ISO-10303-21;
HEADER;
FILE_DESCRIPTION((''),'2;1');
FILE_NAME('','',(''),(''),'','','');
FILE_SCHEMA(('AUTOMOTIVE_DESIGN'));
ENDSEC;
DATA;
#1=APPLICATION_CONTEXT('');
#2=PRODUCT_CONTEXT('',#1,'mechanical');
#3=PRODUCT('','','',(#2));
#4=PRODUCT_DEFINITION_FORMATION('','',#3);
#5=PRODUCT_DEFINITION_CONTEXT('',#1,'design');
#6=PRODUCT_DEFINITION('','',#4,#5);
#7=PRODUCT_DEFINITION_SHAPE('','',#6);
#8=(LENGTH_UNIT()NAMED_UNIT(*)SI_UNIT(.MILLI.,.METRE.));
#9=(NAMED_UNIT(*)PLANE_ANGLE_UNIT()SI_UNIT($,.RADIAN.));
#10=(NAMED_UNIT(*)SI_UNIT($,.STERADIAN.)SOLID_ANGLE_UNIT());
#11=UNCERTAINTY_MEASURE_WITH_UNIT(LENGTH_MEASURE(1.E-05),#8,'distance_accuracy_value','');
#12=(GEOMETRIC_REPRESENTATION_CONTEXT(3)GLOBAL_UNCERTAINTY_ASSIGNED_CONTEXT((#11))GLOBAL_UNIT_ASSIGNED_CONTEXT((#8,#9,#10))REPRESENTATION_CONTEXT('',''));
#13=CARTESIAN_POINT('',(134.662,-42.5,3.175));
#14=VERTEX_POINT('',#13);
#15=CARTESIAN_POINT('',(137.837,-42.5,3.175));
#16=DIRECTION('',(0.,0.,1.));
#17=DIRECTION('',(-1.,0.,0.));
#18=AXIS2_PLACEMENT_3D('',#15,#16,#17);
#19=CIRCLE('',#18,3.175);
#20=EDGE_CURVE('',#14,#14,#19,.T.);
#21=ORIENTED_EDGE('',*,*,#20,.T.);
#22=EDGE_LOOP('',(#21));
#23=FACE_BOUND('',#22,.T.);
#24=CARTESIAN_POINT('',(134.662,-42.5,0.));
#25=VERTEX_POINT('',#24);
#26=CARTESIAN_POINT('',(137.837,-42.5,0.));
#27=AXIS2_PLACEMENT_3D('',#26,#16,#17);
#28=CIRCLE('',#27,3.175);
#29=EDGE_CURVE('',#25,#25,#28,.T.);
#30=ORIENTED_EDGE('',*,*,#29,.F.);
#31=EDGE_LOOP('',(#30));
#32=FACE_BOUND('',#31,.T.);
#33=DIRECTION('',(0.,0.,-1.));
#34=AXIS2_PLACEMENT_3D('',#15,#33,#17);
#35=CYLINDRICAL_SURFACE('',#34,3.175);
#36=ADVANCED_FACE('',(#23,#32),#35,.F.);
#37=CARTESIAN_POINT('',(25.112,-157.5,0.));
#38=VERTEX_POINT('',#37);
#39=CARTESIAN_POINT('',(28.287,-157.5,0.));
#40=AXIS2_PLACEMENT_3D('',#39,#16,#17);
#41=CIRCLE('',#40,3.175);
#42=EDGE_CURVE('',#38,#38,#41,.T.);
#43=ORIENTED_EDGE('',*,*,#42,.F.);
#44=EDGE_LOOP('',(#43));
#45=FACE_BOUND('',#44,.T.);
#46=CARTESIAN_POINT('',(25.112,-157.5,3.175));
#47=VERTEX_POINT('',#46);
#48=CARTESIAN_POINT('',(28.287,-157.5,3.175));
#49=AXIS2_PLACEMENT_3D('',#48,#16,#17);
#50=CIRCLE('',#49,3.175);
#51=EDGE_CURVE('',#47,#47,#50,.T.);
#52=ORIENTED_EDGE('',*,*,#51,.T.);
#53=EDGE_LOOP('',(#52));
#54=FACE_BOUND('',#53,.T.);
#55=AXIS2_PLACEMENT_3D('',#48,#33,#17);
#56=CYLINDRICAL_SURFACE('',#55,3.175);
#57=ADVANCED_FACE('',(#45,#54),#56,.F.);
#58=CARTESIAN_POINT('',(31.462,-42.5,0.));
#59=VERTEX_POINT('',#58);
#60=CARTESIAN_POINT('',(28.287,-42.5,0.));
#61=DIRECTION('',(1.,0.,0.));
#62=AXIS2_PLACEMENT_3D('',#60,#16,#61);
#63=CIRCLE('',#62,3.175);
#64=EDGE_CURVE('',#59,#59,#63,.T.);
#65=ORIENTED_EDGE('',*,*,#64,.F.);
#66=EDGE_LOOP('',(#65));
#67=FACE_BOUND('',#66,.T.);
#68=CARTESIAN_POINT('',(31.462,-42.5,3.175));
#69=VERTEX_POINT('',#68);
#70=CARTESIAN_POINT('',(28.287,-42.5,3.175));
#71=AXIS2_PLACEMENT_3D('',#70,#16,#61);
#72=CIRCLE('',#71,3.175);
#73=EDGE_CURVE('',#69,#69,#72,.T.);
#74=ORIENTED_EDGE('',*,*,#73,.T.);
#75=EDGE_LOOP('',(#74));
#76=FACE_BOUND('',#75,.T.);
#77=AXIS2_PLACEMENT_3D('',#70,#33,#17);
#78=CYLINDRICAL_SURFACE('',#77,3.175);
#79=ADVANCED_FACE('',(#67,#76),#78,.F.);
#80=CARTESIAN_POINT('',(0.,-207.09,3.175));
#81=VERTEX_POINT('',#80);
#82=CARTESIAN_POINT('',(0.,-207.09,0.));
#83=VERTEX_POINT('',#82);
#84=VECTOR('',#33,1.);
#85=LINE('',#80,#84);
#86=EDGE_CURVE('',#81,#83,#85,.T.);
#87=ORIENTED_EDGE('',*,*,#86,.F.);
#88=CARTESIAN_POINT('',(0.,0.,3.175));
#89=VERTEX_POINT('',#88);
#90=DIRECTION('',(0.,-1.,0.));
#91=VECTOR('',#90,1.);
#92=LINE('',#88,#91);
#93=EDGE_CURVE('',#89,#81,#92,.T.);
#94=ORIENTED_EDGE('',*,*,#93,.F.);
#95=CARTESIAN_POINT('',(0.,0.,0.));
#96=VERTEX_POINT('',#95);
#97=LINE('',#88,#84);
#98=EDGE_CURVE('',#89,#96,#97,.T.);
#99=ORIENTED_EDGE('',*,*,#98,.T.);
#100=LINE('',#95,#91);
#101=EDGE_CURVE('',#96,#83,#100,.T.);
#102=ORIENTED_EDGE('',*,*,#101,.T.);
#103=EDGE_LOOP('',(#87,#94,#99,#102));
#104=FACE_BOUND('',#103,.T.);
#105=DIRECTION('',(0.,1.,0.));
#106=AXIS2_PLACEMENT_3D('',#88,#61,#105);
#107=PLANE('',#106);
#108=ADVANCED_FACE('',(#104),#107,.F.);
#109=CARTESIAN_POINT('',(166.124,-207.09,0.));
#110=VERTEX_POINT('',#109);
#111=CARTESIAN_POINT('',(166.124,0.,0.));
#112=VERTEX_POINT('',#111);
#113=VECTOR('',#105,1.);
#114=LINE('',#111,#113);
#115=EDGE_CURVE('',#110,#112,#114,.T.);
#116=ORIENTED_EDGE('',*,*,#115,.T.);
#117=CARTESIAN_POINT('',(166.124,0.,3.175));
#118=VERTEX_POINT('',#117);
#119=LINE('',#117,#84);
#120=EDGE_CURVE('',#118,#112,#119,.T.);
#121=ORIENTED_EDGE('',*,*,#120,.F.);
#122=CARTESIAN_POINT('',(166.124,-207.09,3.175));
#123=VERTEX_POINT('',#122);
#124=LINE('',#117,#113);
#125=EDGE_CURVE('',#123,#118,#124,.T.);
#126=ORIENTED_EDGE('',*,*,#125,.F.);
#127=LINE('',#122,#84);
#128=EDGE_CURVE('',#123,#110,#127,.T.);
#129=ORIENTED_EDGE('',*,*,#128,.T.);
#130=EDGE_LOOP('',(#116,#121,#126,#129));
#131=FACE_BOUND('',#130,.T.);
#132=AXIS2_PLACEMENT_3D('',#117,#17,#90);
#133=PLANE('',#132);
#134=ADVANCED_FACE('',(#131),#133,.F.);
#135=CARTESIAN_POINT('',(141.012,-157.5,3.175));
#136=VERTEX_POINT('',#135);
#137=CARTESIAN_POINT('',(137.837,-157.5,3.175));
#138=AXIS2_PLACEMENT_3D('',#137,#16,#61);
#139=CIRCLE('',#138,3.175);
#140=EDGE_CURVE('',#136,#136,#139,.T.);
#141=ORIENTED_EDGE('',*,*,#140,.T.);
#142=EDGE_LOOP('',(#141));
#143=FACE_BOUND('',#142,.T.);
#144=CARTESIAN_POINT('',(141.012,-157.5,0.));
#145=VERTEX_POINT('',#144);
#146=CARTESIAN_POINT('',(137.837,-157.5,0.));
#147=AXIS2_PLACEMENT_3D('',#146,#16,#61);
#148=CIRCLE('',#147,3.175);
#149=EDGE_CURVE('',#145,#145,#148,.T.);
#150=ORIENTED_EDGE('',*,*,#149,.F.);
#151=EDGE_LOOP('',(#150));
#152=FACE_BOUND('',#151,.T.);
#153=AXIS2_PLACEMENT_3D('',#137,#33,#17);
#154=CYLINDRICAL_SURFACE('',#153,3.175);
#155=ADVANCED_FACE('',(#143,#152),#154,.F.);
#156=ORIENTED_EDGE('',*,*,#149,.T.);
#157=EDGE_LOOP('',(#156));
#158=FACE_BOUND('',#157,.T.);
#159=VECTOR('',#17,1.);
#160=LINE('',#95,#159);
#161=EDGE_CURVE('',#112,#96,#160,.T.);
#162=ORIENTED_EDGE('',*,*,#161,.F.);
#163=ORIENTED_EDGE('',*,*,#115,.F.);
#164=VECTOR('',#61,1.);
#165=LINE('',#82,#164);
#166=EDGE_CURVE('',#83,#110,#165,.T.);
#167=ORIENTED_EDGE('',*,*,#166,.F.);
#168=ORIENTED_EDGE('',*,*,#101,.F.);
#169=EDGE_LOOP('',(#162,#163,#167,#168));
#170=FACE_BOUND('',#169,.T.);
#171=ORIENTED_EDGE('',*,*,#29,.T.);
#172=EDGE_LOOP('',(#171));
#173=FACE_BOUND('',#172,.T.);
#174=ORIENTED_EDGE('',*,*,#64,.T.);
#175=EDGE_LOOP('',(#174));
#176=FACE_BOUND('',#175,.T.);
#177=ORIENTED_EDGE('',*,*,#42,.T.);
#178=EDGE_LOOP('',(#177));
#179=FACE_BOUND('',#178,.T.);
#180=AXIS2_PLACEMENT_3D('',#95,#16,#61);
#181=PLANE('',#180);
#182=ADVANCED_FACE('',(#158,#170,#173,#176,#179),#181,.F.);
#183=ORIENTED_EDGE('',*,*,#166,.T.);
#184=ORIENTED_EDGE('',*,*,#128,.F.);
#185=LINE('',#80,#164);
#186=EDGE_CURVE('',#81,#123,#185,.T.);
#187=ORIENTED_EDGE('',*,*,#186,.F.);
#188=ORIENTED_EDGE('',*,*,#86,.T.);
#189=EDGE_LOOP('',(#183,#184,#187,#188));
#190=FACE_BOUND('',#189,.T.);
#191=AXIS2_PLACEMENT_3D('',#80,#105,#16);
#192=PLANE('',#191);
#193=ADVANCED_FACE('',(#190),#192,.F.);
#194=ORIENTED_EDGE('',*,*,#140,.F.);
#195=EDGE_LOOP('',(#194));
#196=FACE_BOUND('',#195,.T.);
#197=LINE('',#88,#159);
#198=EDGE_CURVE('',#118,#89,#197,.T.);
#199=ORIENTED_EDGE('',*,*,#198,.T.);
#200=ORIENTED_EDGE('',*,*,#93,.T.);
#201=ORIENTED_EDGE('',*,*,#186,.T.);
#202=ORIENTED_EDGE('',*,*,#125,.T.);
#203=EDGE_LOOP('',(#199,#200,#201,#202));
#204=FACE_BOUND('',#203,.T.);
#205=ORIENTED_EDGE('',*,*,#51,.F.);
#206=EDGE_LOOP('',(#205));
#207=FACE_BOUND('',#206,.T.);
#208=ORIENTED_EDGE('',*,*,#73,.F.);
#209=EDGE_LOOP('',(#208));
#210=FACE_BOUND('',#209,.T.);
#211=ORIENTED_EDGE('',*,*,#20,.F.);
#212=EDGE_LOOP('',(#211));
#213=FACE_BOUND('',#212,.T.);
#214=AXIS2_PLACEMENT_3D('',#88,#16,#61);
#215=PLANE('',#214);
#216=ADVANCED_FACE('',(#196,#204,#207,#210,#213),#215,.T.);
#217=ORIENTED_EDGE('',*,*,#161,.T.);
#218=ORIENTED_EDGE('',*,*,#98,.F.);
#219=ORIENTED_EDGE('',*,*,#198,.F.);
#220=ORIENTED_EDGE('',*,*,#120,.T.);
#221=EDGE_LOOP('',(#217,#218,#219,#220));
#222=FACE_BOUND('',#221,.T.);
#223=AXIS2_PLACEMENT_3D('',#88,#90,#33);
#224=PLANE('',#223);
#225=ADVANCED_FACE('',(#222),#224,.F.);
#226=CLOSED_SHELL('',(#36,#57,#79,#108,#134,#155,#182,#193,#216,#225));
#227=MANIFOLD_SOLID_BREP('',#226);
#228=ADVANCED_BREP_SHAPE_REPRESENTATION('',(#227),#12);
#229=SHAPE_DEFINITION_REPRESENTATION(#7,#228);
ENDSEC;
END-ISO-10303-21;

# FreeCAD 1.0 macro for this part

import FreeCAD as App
import Part
import Sketcher

V = App.Vector
Q = App.Units.Quantity

doc = App.newDocument("Part")
params = doc.addObject("Spreadsheet::Sheet", "Params")
for row, (alias, value) in enumerate([
    ("sketch1_diameter", "0.25 in"),
    ("pad1_length", "0.125 in"),
], start=1):
    params.set(f"A{row}", alias)
    params.set(f"B{row}", "=" + value)
    params.setAlias(f"B{row}", alias)

body = doc.addObject("PartDesign::Body", "Body")

sketch1 = body.newObject("Sketcher::SketchObject", "Sketch")
sketch1.AttachmentSupport = (doc.getObject("XY_Plane"), [""])
sketch1.MapMode = "FlatFace"
sketch1.addGeometry(Part.LineSegment(V(0, 0, 0), V(0, -207.1, 0)), False)
sketch1.addGeometry(Part.LineSegment(V(0, -207.1, 0), V(166.1, -207.1, 0)), False)
sketch1.addGeometry(Part.LineSegment(V(166.1, -207.1, 0), V(166.1, 0, 0)), False)
sketch1.addGeometry(Part.LineSegment(V(166.1, 0, 0), V(0, 0, 0)), False)
sketch1.addGeometry(Part.Circle(V(28.3, -157.5, 0), V(0, 0, 1), 3.2), False)
sketch1.addGeometry(Part.Circle(V(137.8, -157.5, 0), V(0, 0, 1), 3.2), False)
sketch1.addGeometry(Part.Circle(V(28.3, -42.5, 0), V(0, 0, 1), 3.2), False)
sketch1.addGeometry(Part.Circle(V(137.8, -42.5, 0), V(0, 0, 1), 3.2), False)
sketch1.addConstraint(Sketcher.Constraint("Coincident", 0, 2, 1, 1))
sketch1.addConstraint(Sketcher.Constraint("Coincident", 1, 2, 2, 1))
sketch1.addConstraint(Sketcher.Constraint("Coincident", 2, 2, 3, 1))
sketch1.addConstraint(Sketcher.Constraint("Coincident", 3, 2, 0, 1))
sketch1.addConstraint(Sketcher.Constraint("Vertical", 0))
sketch1.addConstraint(Sketcher.Constraint("Horizontal", 1))
sketch1.addConstraint(Sketcher.Constraint("Vertical", 2))
sketch1.addConstraint(Sketcher.Constraint("Horizontal", 3))
sketch1.addConstraint(Sketcher.Constraint("Coincident", 3, 2, -1, 1))
sketch1.addConstraint(Sketcher.Constraint("Equal", 4, 5))
sketch1.addConstraint(Sketcher.Constraint("Equal", 5, 6))
sketch1.addConstraint(Sketcher.Constraint("Equal", 6, 7))
sketch1.addConstraint(Sketcher.Constraint("Horizontal", 4, 3, 5, 3))
sketch1.addConstraint(Sketcher.Constraint("Horizontal", 6, 3, 7, 3))
sketch1.addConstraint(Sketcher.Constraint("Vertical", 4, 3, 6, 3))
sketch1.addConstraint(Sketcher.Constraint("Vertical", 5, 3, 7, 3))
sketch1.addConstraint(Sketcher.Constraint("Diameter", 4, Q("0.25 in")))
sketch1.addConstraint(Sketcher.Constraint("DistanceX", 1, 1, 1, 2, Q("166.124 mm")))
sketch1.addConstraint(Sketcher.Constraint("DistanceY", 0, 2, 0, 1, Q("207.09 mm")))
sketch1.addConstraint(Sketcher.Constraint("DistanceX", -1, 1, 4, 3, Q("28.287 mm")))
sketch1.addConstraint(Sketcher.Constraint("DistanceY", 4, 3, -1, 1, Q("157.5 mm")))
sketch1.addConstraint(Sketcher.Constraint("DistanceX", -1, 1, 5, 3, Q("137.837 mm")))
sketch1.addConstraint(Sketcher.Constraint("DistanceY", 6, 3, -1, 1, Q("42.5 mm")))
sketch1.setExpression("Constraints[16]", "Params.sketch1_diameter")
pad1 = body.newObject("PartDesign::Pad", "Pad")
pad1.Profile = sketch1
pad1.setExpression("Length", "Params.pad1_length")

doc.recompute()
